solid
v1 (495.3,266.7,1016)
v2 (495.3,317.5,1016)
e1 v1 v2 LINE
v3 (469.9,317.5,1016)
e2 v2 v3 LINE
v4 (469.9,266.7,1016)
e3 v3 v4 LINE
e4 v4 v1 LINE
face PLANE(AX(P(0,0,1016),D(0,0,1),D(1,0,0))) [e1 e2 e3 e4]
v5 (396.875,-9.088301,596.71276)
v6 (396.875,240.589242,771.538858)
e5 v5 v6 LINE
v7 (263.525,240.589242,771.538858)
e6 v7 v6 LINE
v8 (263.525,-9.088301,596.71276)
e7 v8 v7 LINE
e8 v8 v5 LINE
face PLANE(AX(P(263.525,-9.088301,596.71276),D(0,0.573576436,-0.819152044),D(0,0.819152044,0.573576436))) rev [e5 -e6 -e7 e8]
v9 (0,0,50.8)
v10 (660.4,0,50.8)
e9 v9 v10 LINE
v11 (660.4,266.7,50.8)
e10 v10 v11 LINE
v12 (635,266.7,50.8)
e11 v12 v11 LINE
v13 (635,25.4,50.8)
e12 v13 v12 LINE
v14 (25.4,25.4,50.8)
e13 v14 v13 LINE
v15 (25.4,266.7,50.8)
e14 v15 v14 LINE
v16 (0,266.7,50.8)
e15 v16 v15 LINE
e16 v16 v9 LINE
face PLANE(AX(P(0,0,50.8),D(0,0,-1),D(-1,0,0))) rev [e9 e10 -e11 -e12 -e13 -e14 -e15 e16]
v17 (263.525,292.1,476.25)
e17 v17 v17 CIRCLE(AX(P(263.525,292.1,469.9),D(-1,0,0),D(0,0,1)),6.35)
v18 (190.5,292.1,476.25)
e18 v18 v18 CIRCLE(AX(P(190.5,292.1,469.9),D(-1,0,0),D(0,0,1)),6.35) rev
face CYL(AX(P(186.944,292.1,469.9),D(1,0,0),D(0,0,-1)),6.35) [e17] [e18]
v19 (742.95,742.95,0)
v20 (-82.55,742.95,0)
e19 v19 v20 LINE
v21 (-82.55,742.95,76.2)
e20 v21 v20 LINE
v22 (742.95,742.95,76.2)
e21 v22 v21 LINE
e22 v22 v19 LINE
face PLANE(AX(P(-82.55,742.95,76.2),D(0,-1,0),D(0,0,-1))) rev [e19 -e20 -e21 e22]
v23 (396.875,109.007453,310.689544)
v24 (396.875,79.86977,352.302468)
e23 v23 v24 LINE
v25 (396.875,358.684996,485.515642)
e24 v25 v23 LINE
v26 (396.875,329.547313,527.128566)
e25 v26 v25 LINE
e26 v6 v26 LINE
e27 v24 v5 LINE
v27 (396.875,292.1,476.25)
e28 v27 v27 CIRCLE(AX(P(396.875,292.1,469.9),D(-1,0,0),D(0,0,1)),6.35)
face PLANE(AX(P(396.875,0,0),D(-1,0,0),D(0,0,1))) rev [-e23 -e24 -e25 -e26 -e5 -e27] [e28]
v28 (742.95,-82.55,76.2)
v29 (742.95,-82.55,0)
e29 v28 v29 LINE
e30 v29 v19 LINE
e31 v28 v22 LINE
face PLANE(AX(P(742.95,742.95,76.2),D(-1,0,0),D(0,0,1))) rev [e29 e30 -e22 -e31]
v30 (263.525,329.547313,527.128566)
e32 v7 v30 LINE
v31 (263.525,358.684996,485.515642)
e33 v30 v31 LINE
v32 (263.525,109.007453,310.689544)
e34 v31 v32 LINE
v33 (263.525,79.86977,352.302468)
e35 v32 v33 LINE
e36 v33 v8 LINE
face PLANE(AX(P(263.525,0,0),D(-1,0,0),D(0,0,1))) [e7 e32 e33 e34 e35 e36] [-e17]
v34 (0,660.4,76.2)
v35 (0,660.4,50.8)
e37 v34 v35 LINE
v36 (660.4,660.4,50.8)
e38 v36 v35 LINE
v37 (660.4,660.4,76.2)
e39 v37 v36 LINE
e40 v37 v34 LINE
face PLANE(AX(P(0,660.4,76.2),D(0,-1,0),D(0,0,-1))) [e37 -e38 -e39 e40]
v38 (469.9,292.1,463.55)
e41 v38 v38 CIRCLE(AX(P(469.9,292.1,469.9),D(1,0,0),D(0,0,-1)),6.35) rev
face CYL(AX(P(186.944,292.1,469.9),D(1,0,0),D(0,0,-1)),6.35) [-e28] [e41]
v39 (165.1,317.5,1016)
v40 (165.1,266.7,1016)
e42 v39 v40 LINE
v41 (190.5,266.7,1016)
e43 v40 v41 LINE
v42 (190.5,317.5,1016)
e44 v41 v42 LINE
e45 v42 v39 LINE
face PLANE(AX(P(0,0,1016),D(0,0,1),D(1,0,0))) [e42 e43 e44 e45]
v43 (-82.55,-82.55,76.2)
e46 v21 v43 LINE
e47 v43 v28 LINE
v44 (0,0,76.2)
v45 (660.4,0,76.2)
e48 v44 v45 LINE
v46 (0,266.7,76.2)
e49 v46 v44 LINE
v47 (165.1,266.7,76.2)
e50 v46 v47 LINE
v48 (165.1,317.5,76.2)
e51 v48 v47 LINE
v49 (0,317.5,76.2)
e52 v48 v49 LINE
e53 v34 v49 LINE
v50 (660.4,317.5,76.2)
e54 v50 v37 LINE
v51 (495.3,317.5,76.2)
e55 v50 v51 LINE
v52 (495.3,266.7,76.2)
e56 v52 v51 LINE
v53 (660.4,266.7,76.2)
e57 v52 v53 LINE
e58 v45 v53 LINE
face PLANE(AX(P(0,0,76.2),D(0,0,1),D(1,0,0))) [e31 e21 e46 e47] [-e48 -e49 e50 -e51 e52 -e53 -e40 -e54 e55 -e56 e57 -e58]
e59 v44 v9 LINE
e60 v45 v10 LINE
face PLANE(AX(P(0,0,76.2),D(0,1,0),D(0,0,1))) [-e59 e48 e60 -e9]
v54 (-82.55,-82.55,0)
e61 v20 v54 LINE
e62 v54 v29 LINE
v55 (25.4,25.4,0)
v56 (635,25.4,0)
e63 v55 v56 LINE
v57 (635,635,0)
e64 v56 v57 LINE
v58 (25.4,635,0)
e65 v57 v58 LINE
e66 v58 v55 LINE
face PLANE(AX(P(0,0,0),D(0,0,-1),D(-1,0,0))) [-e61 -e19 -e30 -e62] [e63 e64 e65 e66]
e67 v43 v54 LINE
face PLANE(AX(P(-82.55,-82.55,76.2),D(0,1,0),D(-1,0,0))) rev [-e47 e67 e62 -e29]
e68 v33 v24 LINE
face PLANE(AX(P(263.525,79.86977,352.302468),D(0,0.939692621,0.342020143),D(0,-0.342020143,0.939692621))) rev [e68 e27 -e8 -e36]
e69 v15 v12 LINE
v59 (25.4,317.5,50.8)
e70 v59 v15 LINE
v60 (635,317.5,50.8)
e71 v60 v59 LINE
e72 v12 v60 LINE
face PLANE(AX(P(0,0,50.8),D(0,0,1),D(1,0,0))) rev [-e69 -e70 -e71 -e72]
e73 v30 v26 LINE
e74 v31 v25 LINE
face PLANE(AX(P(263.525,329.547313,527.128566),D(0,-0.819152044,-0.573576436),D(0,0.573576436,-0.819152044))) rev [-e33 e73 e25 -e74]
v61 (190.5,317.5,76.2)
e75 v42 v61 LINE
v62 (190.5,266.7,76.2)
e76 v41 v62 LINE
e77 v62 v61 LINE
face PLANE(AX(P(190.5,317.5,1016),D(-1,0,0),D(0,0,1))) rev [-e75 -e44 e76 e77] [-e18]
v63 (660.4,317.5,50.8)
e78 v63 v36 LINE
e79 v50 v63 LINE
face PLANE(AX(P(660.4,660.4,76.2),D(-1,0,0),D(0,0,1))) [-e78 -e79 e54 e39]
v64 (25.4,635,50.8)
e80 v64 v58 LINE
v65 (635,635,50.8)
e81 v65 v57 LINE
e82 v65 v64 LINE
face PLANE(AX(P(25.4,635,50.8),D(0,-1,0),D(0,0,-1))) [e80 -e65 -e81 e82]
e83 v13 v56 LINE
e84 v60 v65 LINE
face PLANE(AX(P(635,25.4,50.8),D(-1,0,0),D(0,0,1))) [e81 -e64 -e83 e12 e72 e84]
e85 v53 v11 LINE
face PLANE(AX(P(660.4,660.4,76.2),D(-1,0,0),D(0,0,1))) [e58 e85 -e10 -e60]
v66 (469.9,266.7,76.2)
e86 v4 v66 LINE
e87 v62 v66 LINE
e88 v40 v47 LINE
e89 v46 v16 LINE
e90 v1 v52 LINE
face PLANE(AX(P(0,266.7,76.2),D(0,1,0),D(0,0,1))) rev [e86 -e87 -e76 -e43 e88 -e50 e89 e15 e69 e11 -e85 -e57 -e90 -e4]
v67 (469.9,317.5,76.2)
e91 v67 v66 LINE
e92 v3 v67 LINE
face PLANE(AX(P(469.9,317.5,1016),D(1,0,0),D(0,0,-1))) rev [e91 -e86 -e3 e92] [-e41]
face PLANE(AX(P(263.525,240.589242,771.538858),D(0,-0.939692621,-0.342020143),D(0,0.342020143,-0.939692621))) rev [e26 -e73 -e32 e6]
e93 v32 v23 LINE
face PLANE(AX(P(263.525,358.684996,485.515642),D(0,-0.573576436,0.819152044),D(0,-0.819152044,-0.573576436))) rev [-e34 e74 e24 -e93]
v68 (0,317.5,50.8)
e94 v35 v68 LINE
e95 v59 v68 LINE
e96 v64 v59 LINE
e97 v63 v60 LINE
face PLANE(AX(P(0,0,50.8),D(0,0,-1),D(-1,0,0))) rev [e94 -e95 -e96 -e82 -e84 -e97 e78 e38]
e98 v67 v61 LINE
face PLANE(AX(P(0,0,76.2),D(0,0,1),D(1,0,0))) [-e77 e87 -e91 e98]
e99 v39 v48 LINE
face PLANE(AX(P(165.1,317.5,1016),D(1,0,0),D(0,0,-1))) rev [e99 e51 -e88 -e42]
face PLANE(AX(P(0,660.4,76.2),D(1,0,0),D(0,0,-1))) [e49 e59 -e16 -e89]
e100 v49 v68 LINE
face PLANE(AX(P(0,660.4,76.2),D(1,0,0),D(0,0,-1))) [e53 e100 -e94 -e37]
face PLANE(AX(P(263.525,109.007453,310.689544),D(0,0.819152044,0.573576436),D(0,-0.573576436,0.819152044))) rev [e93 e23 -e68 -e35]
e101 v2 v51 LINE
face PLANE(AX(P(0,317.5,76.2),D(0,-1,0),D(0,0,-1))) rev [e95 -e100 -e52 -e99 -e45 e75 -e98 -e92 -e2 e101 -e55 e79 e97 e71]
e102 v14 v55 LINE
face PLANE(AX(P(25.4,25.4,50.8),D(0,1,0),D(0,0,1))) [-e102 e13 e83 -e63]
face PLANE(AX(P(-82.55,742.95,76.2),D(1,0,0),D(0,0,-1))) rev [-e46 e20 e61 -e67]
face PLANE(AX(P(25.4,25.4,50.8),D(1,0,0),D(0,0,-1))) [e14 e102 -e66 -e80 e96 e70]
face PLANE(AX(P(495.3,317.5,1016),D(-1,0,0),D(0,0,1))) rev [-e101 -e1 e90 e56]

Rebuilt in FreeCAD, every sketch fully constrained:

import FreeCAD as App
import Part
import Sketcher
from FreeCAD import Vector
Q = App.Units.Quantity

doc = App.newDocument("Part")
params = doc.addObject("Spreadsheet::Sheet", "Params")
for row, (alias, value) in enumerate([
    ("sketch1_width", "26 in"),
    ("sketch1_width2", "24 in"),
    ("pad1_length", "2 in"),
    ("sketch2_width", "26 in"),
    ("sketch2_height", "2 in"),
    ("pad2_length", "1 in"),
    ("sketch3_width", "1 in"),
    ("sketch3_height", "2 in"),
    ("pad3_length", "37 in"),
    ("sketch4_diameter", "0.5 in"),
    ("sketch4_length", "12 in"),
    ("sketch4_length2", "2 in"),
    ("sketch4_length3", "10.24 in"),
    ("pad4_length", "5.25 in"),
    ("sketch5_diameter", "0.5 in"),
    ("pad5_length", "11.14 in"),
    ("sketch6_width", "26 in"),
    ("sketch6_width2", "32.5 in"),
    ("pad6_length", "3 in"),
], start=1):
    params.set(f"A{row}", alias)
    params.set(f"B{row}", "=" + value)
    params.setAlias(f"B{row}", alias)

body = doc.addObject("PartDesign::Body", "Body")

sketch1 = body.newObject("Sketcher::SketchObject", "Sketch")
sketch1.AttachmentSupport = (doc.getObject("XY_Plane"), [""])
sketch1.MapMode = "FlatFace"
sketch1.addGeometry([
    Part.LineSegment(Vector(0, 660.4, 0), Vector(0, 0, 0)),
    Part.LineSegment(Vector(0, 0, 0), Vector(660.4, 0, 0)),
    Part.LineSegment(Vector(660.4, 0, 0), Vector(660.4, 660.4, 0)),
    Part.LineSegment(Vector(660.4, 660.4, 0), Vector(0, 660.4, 0)),
    Part.LineSegment(Vector(635, 25.4, 0), Vector(25.4, 25.4, 0)),
    Part.LineSegment(Vector(25.4, 25.4, 0), Vector(25.4, 635, 0)),
    Part.LineSegment(Vector(25.4, 635, 0), Vector(635, 635, 0)),
    Part.LineSegment(Vector(635, 635, 0), Vector(635, 25.4, 0)),
], False)
sketch1.addConstraint([
    Sketcher.Constraint("Coincident", 0, 2, 1, 1),
    Sketcher.Constraint("Coincident", 1, 2, 2, 1),
    Sketcher.Constraint("Coincident", 2, 2, 3, 1),
    Sketcher.Constraint("Coincident", 3, 2, 0, 1),
    Sketcher.Constraint("Coincident", 4, 2, 5, 1),
    Sketcher.Constraint("Coincident", 5, 2, 6, 1),
    Sketcher.Constraint("Coincident", 6, 2, 7, 1),
    Sketcher.Constraint("Coincident", 7, 2, 4, 1),
    Sketcher.Constraint("Vertical", 0),
    Sketcher.Constraint("Horizontal", 1),
    Sketcher.Constraint("Vertical", 2),
    Sketcher.Constraint("Horizontal", 3),
    Sketcher.Constraint("Horizontal", 4),
    Sketcher.Constraint("Vertical", 5),
    Sketcher.Constraint("Horizontal", 6),
    Sketcher.Constraint("Vertical", 7),
    Sketcher.Constraint("Coincident", 0, 2, -1, 1),
    Sketcher.Constraint("Equal", 3, 0),
    Sketcher.Constraint("Equal", 6, 5),
    Sketcher.Constraint("DistanceX", 1, 1, 1, 2, Q("26 in")),
    Sketcher.Constraint("DistanceX", 4, 2, 4, 1, Q("24 in")),
    Sketcher.Constraint("DistanceX", -1, 1, 4, 2, Q("1 in")),
    Sketcher.Constraint("DistanceY", -1, 1, 4, 2, Q("1 in")),
])
sketch1.setExpression("Constraints[19]", "Params.sketch1_width")
sketch1.setExpression("Constraints[20]", "Params.sketch1_width2")
pad1 = body.newObject("PartDesign::Pad", "Pad")
pad1.Profile = sketch1
pad1.setExpression("Length", "Params.pad1_length")

sketch2 = body.newObject("Sketcher::SketchObject", "Sketch001")
sketch2.AttachmentSupport = (doc.getObject("XY_Plane"), [""])
sketch2.MapMode = "FlatFace"
sketch2.AttachmentOffset = App.Placement(Vector(0, 0, 2 * 25.4), App.Rotation())
sketch2.addGeometry([
    Part.LineSegment(Vector(0, 317.5, 0), Vector(0, 266.7, 0)),
    Part.LineSegment(Vector(0, 266.7, 0), Vector(660.4, 266.7, 0)),
    Part.LineSegment(Vector(660.4, 266.7, 0), Vector(660.4, 317.5, 0)),
    Part.LineSegment(Vector(660.4, 317.5, 0), Vector(0, 317.5, 0)),
], False)
sketch2.addConstraint([
    Sketcher.Constraint("Coincident", 0, 2, 1, 1),
    Sketcher.Constraint("Coincident", 1, 2, 2, 1),
    Sketcher.Constraint("Coincident", 2, 2, 3, 1),
    Sketcher.Constraint("Coincident", 3, 2, 0, 1),
    Sketcher.Constraint("Vertical", 0),
    Sketcher.Constraint("Horizontal", 1),
    Sketcher.Constraint("Vertical", 2),
    Sketcher.Constraint("Horizontal", 3),
    Sketcher.Constraint("PointOnObject", 0, 2, -2),
    Sketcher.Constraint("DistanceX", 1, 1, 1, 2, Q("26 in")),
    Sketcher.Constraint("DistanceY", 0, 2, 0, 1, Q("2 in")),
    Sketcher.Constraint("DistanceY", -1, 1, 0, 2, Q("10.5 in")),
])
sketch2.setExpression("Constraints[9]", "Params.sketch2_width")
sketch2.setExpression("Constraints[10]", "Params.sketch2_height")
pad2 = body.newObject("PartDesign::Pad", "Pad001")
pad2.Profile = sketch2
pad2.setExpression("Length", "Params.pad2_length")

sketch3 = body.newObject("Sketcher::SketchObject", "Sketch002")
sketch3.AttachmentSupport = (doc.getObject("XY_Plane"), [""])
sketch3.MapMode = "FlatFace"
sketch3.AttachmentOffset = App.Placement(Vector(0, 0, 3 * 25.4), App.Rotation())
sketch3.addGeometry([
    Part.LineSegment(Vector(165.1, 317.5, 0), Vector(165.1, 266.7, 0)),
    Part.LineSegment(Vector(165.1, 266.7, 0), Vector(190.5, 266.7, 0)),
    Part.LineSegment(Vector(190.5, 266.7, 0), Vector(190.5, 317.5, 0)),
    Part.LineSegment(Vector(190.5, 317.5, 0), Vector(165.1, 317.5, 0)),
    Part.LineSegment(Vector(469.9, 317.5, 0), Vector(469.9, 266.7, 0)),
    Part.LineSegment(Vector(469.9, 266.7, 0), Vector(495.3, 266.7, 0)),
    Part.LineSegment(Vector(495.3, 266.7, 0), Vector(495.3, 317.5, 0)),
    Part.LineSegment(Vector(495.3, 317.5, 0), Vector(469.9, 317.5, 0)),
], False)
sketch3.addConstraint([
    Sketcher.Constraint("Coincident", 0, 2, 1, 1),
    Sketcher.Constraint("Coincident", 1, 2, 2, 1),
    Sketcher.Constraint("Coincident", 2, 2, 3, 1),
    Sketcher.Constraint("Coincident", 3, 2, 0, 1),
    Sketcher.Constraint("Coincident", 4, 2, 5, 1),
    Sketcher.Constraint("Coincident", 5, 2, 6, 1),
    Sketcher.Constraint("Coincident", 6, 2, 7, 1),
    Sketcher.Constraint("Coincident", 7, 2, 4, 1),
    Sketcher.Constraint("Vertical", 0),
    Sketcher.Constraint("Horizontal", 1),
    Sketcher.Constraint("Vertical", 2),
    Sketcher.Constraint("Horizontal", 3),
    Sketcher.Constraint("Vertical", 4),
    Sketcher.Constraint("Horizontal", 5),
    Sketcher.Constraint("Vertical", 6),
    Sketcher.Constraint("Horizontal", 7),
    Sketcher.Constraint("Horizontal", 1, 2, 4, 2),
    Sketcher.Constraint("Horizontal", 3, 2, 6, 2),
    Sketcher.Constraint("Equal", 3, 5),
    Sketcher.Constraint("DistanceX", 1, 1, 1, 2, Q("1 in")),
    Sketcher.Constraint("DistanceY", 0, 2, 0, 1, Q("2 in")),
    Sketcher.Constraint("DistanceX", 1, 2, 4, 2, Q("11 in")),
    Sketcher.Constraint("DistanceX", -1, 1, 0, 2, Q("6.5 in")),
    Sketcher.Constraint("DistanceY", -1, 1, 0, 2, Q("10.5 in")),
])
sketch3.setExpression("Constraints[19]", "Params.sketch3_width")
sketch3.setExpression("Constraints[20]", "Params.sketch3_height")
pad3 = body.newObject("PartDesign::Pad", "Pad002")
pad3.Profile = sketch3
pad3.setExpression("Length", "Params.pad3_length")
body2 = doc.addObject("PartDesign::Body", "Body001")

sketch4 = body2.newObject("Sketcher::SketchObject", "Sketch003")
sketch4.AttachmentSupport = (doc.getObject("YZ_Plane001"), [""])
sketch4.MapMode = "FlatFace"
sketch4.AttachmentOffset = App.Placement(Vector(0, 0, 15.625 * 25.4), App.Rotation())
sketch4.addGeometry([
    Part.LineSegment(Vector(358.684996, 485.515642, 0), Vector(109.007453, 310.689544, 0)),
    Part.LineSegment(Vector(109.007453, 310.689544, 0), Vector(79.86977, 352.302468, 0)),
    Part.LineSegment(Vector(79.86977, 352.302468, 0), Vector(-9.088301, 596.71276, 0)),
    Part.LineSegment(Vector(-9.088301, 596.71276, 0), Vector(240.589242, 771.538858, 0)),
    Part.LineSegment(Vector(240.589242, 771.538858, 0), Vector(329.547313, 527.128566, 0)),
    Part.LineSegment(Vector(329.547313, 527.128566, 0), Vector(358.684996, 485.515642, 0)),
    Part.Circle(Vector(292.1, 469.9, 0), Vector(0, 0, 1), 6.35),
], False)
sketch4.addConstraint([
    Sketcher.Constraint("Coincident", 0, 2, 1, 1),
    Sketcher.Constraint("Coincident", 1, 2, 2, 1),
    Sketcher.Constraint("Coincident", 2, 2, 3, 1),
    Sketcher.Constraint("Coincident", 3, 2, 4, 1),
    Sketcher.Constraint("Coincident", 4, 2, 5, 1),
    Sketcher.Constraint("Coincident", 5, 2, 0, 1),
    Sketcher.Constraint("Perpendicular", 0, 1),
    Sketcher.Constraint("Perpendicular", 1, 3),
    Sketcher.Constraint("Parallel", 2, 4),
    Sketcher.Constraint("Perpendicular", 3, 5),
    Sketcher.Constraint("Equal", 0, 3),
    Sketcher.Constraint("Diameter", 6, Q("0.5 in")),
    Sketcher.Constraint("Distance", 0, Q("12 in")),
    Sketcher.Constraint("Distance", 1, Q("2 in")),
    Sketcher.Constraint("Angle", 0, Q("-145 deg")),
    Sketcher.Constraint("Angle", 2, Q("110 deg")),
    Sketcher.Constraint("DistanceX", -1, 1, 6, 3, Q("11.5 in")),
    Sketcher.Constraint("DistanceY", -1, 1, 6, 3, Q("18.5 in")),
    Sketcher.Constraint("Distance", 2, Q("10.24 in")),
    Sketcher.Constraint("DistanceX", 2, 2, -1, 1, Q("9.088301 mm")),
    Sketcher.Constraint("DistanceY", -1, 1, 2, 2, Q("596.71276 mm")),
])
sketch4.setExpression("Constraints[11]", "Params.sketch4_diameter")
sketch4.setExpression("Constraints[12]", "Params.sketch4_length")
sketch4.setExpression("Constraints[13]", "Params.sketch4_length2")
sketch4.setExpression("Constraints[18]", "Params.sketch4_length3")
pad4 = body2.newObject("PartDesign::Pad", "Pad003")
pad4.Profile = sketch4
pad4.setExpression("Length", "Params.pad4_length")
pad4.Reversed = True
body.AllowCompound = True
doc.recompute()

boolean = body.newObject("PartDesign::Boolean", "Boolean")
boolean.Type = "Fuse"
boolean.addObjects([body2])

sketch5 = body.newObject("Sketcher::SketchObject", "Sketch004")
sketch5.AttachmentSupport = (doc.getObject("YZ_Plane"), [""])
sketch5.MapMode = "FlatFace"
sketch5.AttachmentOffset = App.Placement(Vector(0, 0, 18.5 * 25.4), App.Rotation())
sketch5.addGeometry(Part.Circle(Vector(292.1, 469.9, 0), Vector(0, 0, 1), 6.35), False)
sketch5.addConstraint([
    Sketcher.Constraint("Diameter", 0, Q("0.5 in")),
    Sketcher.Constraint("DistanceX", -1, 1, 0, 3, Q("11.5 in")),
    Sketcher.Constraint("DistanceY", -1, 1, 0, 3, Q("18.5 in")),
])
sketch5.setExpression("Constraints[0]", "Params.sketch5_diameter")
pad5 = body.newObject("PartDesign::Pad", "Pad004")
pad5.Profile = sketch5
pad5.setExpression("Length", "Params.pad5_length")
pad5.Reversed = True

sketch6 = body.newObject("Sketcher::SketchObject", "Sketch005")
sketch6.AttachmentSupport = (doc.getObject("XY_Plane"), [""])
sketch6.MapMode = "FlatFace"
sketch6.addGeometry([
    Part.LineSegment(Vector(-82.55, 742.95, 0), Vector(-82.55, -82.55, 0)),
    Part.LineSegment(Vector(-82.55, -82.55, 0), Vector(742.95, -82.55, 0)),
    Part.LineSegment(Vector(742.95, -82.55, 0), Vector(742.95, 742.95, 0)),
    Part.LineSegment(Vector(742.95, 742.95, 0), Vector(-82.55, 742.95, 0)),
    Part.LineSegment(Vector(660.4, 0, 0), Vector(0, 0, 0)),
    Part.LineSegment(Vector(0, 0, 0), Vector(0, 660.4, 0)),
    Part.LineSegment(Vector(0, 660.4, 0), Vector(660.4, 660.4, 0)),
    Part.LineSegment(Vector(660.4, 660.4, 0), Vector(660.4, 0, 0)),
], False)
sketch6.addConstraint([
    Sketcher.Constraint("Coincident", 0, 2, 1, 1),
    Sketcher.Constraint("Coincident", 1, 2, 2, 1),
    Sketcher.Constraint("Coincident", 2, 2, 3, 1),
    Sketcher.Constraint("Coincident", 3, 2, 0, 1),
    Sketcher.Constraint("Coincident", 4, 2, 5, 1),
    Sketcher.Constraint("Coincident", 5, 2, 6, 1),
    Sketcher.Constraint("Coincident", 6, 2, 7, 1),
    Sketcher.Constraint("Coincident", 7, 2, 4, 1),
    Sketcher.Constraint("Vertical", 0),
    Sketcher.Constraint("Horizontal", 1),
    Sketcher.Constraint("Vertical", 2),
    Sketcher.Constraint("Horizontal", 3),
    Sketcher.Constraint("Horizontal", 4),
    Sketcher.Constraint("Vertical", 5),
    Sketcher.Constraint("Horizontal", 6),
    Sketcher.Constraint("Vertical", 7),
    Sketcher.Constraint("Coincident", 4, 2, -1, 1),
    Sketcher.Constraint("Equal", 3, 0),
    Sketcher.Constraint("Equal", 6, 5),
    Sketcher.Constraint("DistanceX", 4, 2, 4, 1, Q("26 in")),
    Sketcher.Constraint("DistanceX", 1, 1, 1, 2, Q("32.5 in")),
    Sketcher.Constraint("DistanceX", 0, 2, -1, 1, Q("3.25 in")),
    Sketcher.Constraint("DistanceY", 0, 2, -1, 1, Q("3.25 in")),
])
sketch6.setExpression("Constraints[19]", "Params.sketch6_width")
sketch6.setExpression("Constraints[20]", "Params.sketch6_width2")
pad6 = body.newObject("PartDesign::Pad", "Pad005")
pad6.Profile = sketch6
pad6.setExpression("Length", "Params.pad6_length")

doc.recompute()
